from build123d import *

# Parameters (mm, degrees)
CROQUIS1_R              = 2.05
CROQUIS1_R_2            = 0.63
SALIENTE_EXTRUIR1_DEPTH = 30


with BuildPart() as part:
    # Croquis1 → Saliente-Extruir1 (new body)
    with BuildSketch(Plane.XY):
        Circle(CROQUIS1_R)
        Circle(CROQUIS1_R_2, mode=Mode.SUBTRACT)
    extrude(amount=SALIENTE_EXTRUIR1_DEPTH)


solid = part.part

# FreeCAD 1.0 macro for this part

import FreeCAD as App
import Part
import Sketcher
from FreeCAD import Vector
Q = App.Units.Quantity

doc = App.newDocument("Part")
body = doc.addObject("PartDesign::Body", "Body")

# Sketch on XY plane
sketch1 = body.newObject("Sketcher::SketchObject", "Sketch")
sketch1.AttachmentSupport = (doc.getObject("XY_Plane"), [""])
sketch1.MapMode = "FlatFace"
sketch1.addGeometry([
    Part.Circle(Vector(0, 0, 0), Vector(0, 0, 1), 2),
    Part.Circle(Vector(0, 0, 0), Vector(0, 0, 1), 0.6),
], False)
sketch1.addConstraint([
    Sketcher.Constraint("Coincident", 0, 3, -1, 1),
    Sketcher.Constraint("Coincident", 1, 3, -1, 1),
    Sketcher.Constraint("Diameter", 0, Q("4.1 mm")),
    Sketcher.Constraint("Diameter", 1, Q("1.26 mm")),
])
pad1 = body.newObject("PartDesign::Pad", "Pad")
pad1.Profile = sketch1
pad1.Length = 30

doc.recompute()
